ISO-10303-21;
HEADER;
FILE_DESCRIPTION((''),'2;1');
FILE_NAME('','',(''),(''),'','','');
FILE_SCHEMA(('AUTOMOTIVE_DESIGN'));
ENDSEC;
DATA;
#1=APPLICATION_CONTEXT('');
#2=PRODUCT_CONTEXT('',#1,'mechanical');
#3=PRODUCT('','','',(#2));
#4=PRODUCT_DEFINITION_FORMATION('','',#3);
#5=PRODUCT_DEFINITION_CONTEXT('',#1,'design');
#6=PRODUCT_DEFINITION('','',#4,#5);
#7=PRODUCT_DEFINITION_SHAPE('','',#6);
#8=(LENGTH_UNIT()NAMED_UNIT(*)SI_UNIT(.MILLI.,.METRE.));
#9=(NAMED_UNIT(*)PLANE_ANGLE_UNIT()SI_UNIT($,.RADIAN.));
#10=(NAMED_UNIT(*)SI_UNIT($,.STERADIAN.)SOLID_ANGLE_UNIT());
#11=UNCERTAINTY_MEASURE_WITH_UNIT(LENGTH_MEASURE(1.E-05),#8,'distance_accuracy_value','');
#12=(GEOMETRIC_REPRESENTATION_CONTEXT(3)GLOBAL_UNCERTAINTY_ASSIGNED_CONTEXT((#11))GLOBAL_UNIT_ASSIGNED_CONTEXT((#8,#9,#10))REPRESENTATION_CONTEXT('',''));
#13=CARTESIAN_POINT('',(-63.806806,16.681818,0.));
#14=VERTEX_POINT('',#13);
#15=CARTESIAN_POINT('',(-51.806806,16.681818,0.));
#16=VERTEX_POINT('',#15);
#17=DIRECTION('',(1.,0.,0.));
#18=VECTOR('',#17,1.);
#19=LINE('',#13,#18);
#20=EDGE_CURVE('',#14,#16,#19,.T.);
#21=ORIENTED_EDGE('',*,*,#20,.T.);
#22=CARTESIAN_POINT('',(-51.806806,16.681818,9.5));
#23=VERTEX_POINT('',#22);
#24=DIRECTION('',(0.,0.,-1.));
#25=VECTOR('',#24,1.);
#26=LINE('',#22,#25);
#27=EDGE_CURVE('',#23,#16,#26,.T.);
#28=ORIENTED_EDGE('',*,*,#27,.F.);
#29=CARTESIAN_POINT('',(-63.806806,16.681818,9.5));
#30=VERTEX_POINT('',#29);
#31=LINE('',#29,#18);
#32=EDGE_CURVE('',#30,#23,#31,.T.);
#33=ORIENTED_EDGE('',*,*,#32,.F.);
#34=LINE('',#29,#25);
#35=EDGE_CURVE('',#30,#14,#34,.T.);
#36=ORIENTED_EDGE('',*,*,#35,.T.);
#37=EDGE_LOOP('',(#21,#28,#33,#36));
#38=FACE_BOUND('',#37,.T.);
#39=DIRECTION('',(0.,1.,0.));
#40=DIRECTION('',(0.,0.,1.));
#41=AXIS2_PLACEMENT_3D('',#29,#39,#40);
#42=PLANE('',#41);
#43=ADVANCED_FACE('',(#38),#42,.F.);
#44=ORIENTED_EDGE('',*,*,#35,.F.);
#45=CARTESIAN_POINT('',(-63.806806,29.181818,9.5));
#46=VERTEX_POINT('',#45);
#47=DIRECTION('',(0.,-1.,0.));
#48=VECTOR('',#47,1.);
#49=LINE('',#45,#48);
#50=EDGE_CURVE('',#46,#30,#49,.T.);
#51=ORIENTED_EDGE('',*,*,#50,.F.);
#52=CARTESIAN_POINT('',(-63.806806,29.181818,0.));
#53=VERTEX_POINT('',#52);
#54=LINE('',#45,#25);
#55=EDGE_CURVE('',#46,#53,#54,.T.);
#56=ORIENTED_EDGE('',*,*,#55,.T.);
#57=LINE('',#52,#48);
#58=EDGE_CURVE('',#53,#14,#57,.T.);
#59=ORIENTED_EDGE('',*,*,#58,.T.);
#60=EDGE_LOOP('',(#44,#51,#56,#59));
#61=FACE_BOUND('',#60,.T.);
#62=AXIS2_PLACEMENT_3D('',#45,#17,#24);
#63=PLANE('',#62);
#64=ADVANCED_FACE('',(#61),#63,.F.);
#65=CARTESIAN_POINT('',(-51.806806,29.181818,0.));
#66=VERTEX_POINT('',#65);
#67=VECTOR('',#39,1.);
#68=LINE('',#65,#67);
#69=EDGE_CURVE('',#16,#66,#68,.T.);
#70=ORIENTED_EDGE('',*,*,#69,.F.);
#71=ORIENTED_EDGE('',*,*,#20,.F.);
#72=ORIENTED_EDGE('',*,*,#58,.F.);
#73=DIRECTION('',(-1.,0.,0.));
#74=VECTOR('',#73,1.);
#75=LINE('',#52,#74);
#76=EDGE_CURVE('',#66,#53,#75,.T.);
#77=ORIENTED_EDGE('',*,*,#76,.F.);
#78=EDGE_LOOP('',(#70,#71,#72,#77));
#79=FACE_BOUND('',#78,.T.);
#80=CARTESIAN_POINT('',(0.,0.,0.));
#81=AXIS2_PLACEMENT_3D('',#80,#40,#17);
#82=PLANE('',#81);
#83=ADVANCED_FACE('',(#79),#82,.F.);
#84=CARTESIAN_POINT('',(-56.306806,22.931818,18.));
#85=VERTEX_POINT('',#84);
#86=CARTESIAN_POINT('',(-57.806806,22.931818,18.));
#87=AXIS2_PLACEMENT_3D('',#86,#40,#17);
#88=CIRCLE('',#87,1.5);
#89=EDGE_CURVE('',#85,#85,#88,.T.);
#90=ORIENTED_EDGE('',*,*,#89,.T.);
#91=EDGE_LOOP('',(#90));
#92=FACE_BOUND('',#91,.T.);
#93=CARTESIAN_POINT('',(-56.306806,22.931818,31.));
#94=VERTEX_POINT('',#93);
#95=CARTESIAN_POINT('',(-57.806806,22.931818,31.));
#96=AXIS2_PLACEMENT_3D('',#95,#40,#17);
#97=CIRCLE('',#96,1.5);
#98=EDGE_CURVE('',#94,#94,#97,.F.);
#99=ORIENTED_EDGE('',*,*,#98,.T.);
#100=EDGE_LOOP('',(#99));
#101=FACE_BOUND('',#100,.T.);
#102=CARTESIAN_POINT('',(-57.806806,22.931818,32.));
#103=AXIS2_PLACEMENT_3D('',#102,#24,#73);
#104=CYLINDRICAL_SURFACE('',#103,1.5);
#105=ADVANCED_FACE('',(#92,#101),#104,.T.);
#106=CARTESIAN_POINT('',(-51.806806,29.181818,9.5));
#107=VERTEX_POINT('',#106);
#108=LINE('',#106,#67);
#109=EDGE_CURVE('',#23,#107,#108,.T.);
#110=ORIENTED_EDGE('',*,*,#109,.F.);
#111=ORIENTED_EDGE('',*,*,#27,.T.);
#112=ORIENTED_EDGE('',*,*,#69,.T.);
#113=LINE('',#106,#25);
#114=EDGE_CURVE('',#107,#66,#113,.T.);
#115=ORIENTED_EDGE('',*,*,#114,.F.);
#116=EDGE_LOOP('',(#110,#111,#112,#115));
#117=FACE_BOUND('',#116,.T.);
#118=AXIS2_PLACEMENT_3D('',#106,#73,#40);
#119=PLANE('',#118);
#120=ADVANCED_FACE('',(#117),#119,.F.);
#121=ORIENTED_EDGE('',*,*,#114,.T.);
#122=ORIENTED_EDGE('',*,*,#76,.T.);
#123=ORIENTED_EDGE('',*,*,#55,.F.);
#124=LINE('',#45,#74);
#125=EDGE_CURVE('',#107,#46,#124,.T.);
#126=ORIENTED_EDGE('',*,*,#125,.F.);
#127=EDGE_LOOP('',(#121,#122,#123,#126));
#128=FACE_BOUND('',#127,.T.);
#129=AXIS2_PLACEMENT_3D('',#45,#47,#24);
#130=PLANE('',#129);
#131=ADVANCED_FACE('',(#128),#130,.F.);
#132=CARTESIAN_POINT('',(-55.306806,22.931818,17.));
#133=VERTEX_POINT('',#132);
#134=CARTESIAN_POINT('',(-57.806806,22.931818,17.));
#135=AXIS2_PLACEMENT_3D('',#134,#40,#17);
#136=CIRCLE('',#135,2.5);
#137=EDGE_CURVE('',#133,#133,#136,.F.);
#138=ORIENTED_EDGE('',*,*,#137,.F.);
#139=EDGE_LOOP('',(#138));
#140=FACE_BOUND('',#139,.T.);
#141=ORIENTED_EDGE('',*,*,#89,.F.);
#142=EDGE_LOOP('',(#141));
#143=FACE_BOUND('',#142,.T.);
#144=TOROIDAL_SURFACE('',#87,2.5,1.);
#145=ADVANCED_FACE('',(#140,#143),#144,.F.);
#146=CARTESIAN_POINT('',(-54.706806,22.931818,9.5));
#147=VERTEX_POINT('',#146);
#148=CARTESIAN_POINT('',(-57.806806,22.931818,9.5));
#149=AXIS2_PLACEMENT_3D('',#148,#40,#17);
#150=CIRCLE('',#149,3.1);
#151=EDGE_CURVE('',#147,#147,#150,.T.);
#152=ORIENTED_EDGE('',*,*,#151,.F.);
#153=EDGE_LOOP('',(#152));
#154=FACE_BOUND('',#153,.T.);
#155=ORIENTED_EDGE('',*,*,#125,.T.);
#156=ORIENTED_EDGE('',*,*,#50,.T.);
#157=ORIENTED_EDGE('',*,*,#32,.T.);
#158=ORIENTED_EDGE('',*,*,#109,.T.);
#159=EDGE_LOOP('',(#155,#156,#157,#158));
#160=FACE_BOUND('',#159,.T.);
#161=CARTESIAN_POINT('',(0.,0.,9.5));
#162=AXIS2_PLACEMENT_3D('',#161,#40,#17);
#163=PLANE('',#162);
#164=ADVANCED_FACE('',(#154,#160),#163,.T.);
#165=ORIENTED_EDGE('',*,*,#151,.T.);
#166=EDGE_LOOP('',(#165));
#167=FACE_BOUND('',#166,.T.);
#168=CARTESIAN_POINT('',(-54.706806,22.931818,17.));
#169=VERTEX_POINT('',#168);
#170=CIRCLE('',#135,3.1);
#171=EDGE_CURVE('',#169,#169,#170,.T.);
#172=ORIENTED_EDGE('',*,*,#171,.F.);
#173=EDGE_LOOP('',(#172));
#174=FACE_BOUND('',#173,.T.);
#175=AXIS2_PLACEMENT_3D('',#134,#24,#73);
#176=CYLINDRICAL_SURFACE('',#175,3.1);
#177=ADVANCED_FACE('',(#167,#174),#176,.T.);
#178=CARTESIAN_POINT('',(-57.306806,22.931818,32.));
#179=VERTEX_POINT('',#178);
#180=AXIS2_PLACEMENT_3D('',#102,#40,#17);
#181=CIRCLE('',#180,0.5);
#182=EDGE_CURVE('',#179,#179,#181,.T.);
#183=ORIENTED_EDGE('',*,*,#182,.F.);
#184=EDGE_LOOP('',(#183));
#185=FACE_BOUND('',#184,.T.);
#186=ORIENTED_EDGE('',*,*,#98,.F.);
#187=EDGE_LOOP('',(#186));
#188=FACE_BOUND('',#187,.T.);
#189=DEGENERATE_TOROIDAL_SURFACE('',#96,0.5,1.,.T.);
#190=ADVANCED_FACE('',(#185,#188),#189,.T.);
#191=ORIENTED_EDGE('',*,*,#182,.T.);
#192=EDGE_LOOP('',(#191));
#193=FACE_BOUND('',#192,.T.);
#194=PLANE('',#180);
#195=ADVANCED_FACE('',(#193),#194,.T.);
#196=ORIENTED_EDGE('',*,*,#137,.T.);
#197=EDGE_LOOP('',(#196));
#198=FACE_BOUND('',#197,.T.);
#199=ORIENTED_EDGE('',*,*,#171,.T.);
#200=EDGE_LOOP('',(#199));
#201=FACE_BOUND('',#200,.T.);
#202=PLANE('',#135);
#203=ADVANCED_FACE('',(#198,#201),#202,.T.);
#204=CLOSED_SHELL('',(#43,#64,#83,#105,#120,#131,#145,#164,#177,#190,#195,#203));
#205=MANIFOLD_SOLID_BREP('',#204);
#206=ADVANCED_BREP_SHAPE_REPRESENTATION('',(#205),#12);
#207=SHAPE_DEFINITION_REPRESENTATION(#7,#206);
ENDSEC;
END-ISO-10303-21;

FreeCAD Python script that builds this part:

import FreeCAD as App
import Part
import Sketcher
from FreeCAD import Vector


def edges_at(feature, points):
    """Names of the edges that pass closest to the given points."""
    edges = feature.Shape.Edges
    near = lambda p: min(range(len(edges)), key=lambda i: edges[i].distToShape(Part.Vertex(*p))[0])
    return sorted({f"Edge{near(p) + 1}" for p in points})


def add_polygon(sketch, points):
    """Adds a closed chain of lines whose ends are joined by coincident constraints."""
    first, n = sketch.GeometryCount, len(points)
    for a, b in zip(points, points[1:] + points[:1]):
        sketch.addGeometry(Part.LineSegment(App.Vector(*a, 0), App.Vector(*b, 0)), False)
    for i in range(n):
        sketch.addConstraint(Sketcher.Constraint("Coincident", first + i, 2, first + (i + 1) % n, 1))

doc = App.newDocument("Part")
params = doc.addObject("Spreadsheet::Sheet", "Params")
for row, (alias, value) in enumerate([
    ("sketch1_width", "12 mm"),
    ("sketch1_height", "12.5 mm"),
    ("pad1_length", "9.5 mm"),
    ("sketch2_diameter", "6.2 mm"),
    ("pad2_length", "7.5 mm"),
    ("sketch3_diameter", "3 mm"),
    ("pad3_length", "15 mm"),
    ("fillet_radius", "1 mm"),
], start=1):
    params.set(f"A{row}", alias)
    params.set(f"B{row}", "=" + value)
    params.setAlias(f"B{row}", alias)

body = doc.addObject("PartDesign::Body", "Body")

sketch1 = body.newObject("Sketcher::SketchObject", "Sketch")
sketch1.AttachmentSupport = (doc.getObject("XY_Plane"), [""])
sketch1.MapMode = "FlatFace"
add_polygon(sketch1, [(-64, 29), (-64, 17), (-52, 17), (-52, 29)])
sketch1.addConstraint([
    Sketcher.Constraint("Vertical", 0),
    Sketcher.Constraint("Horizontal", 1),
    Sketcher.Constraint("Vertical", 2),
    Sketcher.Constraint("Horizontal", 3),
    Sketcher.Constraint("DistanceX", 1, 1, 1, 2, 12.0),
    Sketcher.Constraint("DistanceY", 0, 2, 0, 1, 12.5),
    Sketcher.Constraint("DistanceY", -1, 1, 0, 2, 16.681818),
    Sketcher.Constraint("DistanceX", 0, 2, -1, 1, 63.806806),
])
sketch1.setExpression("Constraints[8]", "Params.sketch1_width")
sketch1.setExpression("Constraints[9]", "Params.sketch1_height")
pad1 = body.newObject("PartDesign::Pad", "Pad")
pad1.Profile = sketch1
pad1.setExpression("Length", "Params.pad1_length")

sketch2 = body.newObject("Sketcher::SketchObject", "Sketch001")
sketch2.AttachmentSupport = (doc.getObject("XY_Plane"), [""])
sketch2.MapMode = "FlatFace"
sketch2.AttachmentOffset = App.Placement(Vector(0, 0, 9.5), App.Rotation())
sketch2.addGeometry(Part.Circle(Vector(-57.8, 22.9, 0), Vector(0, 0, 1), 3.1), False)
sketch2.addConstraint([
    Sketcher.Constraint("Diameter", 0, 6.2),
    Sketcher.Constraint("DistanceY", -1, 1, 0, 3, 22.931818),
    Sketcher.Constraint("DistanceX", 0, 3, -1, 1, 57.806806),
])
sketch2.setExpression("Constraints[0]", "Params.sketch2_diameter")
pad2 = body.newObject("PartDesign::Pad", "Pad001")
pad2.Profile = sketch2
pad2.setExpression("Length", "Params.pad2_length")

sketch3 = body.newObject("Sketcher::SketchObject", "Sketch002")
sketch3.AttachmentSupport = (doc.getObject("XY_Plane"), [""])
sketch3.MapMode = "FlatFace"
sketch3.AttachmentOffset = App.Placement(Vector(0, 0, 17), App.Rotation())
sketch3.addGeometry(Part.Circle(Vector(-57.8, 22.9, 0), Vector(0, 0, 1), 1.5), False)
sketch3.addConstraint([
    Sketcher.Constraint("Diameter", 0, 3.0),
    Sketcher.Constraint("DistanceY", -1, 1, 0, 3, 22.931818),
    Sketcher.Constraint("DistanceX", 0, 3, -1, 1, 57.806806),
])
sketch3.setExpression("Constraints[0]", "Params.sketch3_diameter")
pad3 = body.newObject("PartDesign::Pad", "Pad002")
pad3.Profile = sketch3
pad3.setExpression("Length", "Params.pad3_length")
doc.recompute()

fillet = body.newObject("PartDesign::Fillet", "Fillet")
fillet.Base = (pad3, edges_at(pad3, [(-59.307, 22.932, 17), (-59.307, 22.932, 32)]))
fillet.setExpression("Radius", "Params.fillet_radius")

doc.recompute()
